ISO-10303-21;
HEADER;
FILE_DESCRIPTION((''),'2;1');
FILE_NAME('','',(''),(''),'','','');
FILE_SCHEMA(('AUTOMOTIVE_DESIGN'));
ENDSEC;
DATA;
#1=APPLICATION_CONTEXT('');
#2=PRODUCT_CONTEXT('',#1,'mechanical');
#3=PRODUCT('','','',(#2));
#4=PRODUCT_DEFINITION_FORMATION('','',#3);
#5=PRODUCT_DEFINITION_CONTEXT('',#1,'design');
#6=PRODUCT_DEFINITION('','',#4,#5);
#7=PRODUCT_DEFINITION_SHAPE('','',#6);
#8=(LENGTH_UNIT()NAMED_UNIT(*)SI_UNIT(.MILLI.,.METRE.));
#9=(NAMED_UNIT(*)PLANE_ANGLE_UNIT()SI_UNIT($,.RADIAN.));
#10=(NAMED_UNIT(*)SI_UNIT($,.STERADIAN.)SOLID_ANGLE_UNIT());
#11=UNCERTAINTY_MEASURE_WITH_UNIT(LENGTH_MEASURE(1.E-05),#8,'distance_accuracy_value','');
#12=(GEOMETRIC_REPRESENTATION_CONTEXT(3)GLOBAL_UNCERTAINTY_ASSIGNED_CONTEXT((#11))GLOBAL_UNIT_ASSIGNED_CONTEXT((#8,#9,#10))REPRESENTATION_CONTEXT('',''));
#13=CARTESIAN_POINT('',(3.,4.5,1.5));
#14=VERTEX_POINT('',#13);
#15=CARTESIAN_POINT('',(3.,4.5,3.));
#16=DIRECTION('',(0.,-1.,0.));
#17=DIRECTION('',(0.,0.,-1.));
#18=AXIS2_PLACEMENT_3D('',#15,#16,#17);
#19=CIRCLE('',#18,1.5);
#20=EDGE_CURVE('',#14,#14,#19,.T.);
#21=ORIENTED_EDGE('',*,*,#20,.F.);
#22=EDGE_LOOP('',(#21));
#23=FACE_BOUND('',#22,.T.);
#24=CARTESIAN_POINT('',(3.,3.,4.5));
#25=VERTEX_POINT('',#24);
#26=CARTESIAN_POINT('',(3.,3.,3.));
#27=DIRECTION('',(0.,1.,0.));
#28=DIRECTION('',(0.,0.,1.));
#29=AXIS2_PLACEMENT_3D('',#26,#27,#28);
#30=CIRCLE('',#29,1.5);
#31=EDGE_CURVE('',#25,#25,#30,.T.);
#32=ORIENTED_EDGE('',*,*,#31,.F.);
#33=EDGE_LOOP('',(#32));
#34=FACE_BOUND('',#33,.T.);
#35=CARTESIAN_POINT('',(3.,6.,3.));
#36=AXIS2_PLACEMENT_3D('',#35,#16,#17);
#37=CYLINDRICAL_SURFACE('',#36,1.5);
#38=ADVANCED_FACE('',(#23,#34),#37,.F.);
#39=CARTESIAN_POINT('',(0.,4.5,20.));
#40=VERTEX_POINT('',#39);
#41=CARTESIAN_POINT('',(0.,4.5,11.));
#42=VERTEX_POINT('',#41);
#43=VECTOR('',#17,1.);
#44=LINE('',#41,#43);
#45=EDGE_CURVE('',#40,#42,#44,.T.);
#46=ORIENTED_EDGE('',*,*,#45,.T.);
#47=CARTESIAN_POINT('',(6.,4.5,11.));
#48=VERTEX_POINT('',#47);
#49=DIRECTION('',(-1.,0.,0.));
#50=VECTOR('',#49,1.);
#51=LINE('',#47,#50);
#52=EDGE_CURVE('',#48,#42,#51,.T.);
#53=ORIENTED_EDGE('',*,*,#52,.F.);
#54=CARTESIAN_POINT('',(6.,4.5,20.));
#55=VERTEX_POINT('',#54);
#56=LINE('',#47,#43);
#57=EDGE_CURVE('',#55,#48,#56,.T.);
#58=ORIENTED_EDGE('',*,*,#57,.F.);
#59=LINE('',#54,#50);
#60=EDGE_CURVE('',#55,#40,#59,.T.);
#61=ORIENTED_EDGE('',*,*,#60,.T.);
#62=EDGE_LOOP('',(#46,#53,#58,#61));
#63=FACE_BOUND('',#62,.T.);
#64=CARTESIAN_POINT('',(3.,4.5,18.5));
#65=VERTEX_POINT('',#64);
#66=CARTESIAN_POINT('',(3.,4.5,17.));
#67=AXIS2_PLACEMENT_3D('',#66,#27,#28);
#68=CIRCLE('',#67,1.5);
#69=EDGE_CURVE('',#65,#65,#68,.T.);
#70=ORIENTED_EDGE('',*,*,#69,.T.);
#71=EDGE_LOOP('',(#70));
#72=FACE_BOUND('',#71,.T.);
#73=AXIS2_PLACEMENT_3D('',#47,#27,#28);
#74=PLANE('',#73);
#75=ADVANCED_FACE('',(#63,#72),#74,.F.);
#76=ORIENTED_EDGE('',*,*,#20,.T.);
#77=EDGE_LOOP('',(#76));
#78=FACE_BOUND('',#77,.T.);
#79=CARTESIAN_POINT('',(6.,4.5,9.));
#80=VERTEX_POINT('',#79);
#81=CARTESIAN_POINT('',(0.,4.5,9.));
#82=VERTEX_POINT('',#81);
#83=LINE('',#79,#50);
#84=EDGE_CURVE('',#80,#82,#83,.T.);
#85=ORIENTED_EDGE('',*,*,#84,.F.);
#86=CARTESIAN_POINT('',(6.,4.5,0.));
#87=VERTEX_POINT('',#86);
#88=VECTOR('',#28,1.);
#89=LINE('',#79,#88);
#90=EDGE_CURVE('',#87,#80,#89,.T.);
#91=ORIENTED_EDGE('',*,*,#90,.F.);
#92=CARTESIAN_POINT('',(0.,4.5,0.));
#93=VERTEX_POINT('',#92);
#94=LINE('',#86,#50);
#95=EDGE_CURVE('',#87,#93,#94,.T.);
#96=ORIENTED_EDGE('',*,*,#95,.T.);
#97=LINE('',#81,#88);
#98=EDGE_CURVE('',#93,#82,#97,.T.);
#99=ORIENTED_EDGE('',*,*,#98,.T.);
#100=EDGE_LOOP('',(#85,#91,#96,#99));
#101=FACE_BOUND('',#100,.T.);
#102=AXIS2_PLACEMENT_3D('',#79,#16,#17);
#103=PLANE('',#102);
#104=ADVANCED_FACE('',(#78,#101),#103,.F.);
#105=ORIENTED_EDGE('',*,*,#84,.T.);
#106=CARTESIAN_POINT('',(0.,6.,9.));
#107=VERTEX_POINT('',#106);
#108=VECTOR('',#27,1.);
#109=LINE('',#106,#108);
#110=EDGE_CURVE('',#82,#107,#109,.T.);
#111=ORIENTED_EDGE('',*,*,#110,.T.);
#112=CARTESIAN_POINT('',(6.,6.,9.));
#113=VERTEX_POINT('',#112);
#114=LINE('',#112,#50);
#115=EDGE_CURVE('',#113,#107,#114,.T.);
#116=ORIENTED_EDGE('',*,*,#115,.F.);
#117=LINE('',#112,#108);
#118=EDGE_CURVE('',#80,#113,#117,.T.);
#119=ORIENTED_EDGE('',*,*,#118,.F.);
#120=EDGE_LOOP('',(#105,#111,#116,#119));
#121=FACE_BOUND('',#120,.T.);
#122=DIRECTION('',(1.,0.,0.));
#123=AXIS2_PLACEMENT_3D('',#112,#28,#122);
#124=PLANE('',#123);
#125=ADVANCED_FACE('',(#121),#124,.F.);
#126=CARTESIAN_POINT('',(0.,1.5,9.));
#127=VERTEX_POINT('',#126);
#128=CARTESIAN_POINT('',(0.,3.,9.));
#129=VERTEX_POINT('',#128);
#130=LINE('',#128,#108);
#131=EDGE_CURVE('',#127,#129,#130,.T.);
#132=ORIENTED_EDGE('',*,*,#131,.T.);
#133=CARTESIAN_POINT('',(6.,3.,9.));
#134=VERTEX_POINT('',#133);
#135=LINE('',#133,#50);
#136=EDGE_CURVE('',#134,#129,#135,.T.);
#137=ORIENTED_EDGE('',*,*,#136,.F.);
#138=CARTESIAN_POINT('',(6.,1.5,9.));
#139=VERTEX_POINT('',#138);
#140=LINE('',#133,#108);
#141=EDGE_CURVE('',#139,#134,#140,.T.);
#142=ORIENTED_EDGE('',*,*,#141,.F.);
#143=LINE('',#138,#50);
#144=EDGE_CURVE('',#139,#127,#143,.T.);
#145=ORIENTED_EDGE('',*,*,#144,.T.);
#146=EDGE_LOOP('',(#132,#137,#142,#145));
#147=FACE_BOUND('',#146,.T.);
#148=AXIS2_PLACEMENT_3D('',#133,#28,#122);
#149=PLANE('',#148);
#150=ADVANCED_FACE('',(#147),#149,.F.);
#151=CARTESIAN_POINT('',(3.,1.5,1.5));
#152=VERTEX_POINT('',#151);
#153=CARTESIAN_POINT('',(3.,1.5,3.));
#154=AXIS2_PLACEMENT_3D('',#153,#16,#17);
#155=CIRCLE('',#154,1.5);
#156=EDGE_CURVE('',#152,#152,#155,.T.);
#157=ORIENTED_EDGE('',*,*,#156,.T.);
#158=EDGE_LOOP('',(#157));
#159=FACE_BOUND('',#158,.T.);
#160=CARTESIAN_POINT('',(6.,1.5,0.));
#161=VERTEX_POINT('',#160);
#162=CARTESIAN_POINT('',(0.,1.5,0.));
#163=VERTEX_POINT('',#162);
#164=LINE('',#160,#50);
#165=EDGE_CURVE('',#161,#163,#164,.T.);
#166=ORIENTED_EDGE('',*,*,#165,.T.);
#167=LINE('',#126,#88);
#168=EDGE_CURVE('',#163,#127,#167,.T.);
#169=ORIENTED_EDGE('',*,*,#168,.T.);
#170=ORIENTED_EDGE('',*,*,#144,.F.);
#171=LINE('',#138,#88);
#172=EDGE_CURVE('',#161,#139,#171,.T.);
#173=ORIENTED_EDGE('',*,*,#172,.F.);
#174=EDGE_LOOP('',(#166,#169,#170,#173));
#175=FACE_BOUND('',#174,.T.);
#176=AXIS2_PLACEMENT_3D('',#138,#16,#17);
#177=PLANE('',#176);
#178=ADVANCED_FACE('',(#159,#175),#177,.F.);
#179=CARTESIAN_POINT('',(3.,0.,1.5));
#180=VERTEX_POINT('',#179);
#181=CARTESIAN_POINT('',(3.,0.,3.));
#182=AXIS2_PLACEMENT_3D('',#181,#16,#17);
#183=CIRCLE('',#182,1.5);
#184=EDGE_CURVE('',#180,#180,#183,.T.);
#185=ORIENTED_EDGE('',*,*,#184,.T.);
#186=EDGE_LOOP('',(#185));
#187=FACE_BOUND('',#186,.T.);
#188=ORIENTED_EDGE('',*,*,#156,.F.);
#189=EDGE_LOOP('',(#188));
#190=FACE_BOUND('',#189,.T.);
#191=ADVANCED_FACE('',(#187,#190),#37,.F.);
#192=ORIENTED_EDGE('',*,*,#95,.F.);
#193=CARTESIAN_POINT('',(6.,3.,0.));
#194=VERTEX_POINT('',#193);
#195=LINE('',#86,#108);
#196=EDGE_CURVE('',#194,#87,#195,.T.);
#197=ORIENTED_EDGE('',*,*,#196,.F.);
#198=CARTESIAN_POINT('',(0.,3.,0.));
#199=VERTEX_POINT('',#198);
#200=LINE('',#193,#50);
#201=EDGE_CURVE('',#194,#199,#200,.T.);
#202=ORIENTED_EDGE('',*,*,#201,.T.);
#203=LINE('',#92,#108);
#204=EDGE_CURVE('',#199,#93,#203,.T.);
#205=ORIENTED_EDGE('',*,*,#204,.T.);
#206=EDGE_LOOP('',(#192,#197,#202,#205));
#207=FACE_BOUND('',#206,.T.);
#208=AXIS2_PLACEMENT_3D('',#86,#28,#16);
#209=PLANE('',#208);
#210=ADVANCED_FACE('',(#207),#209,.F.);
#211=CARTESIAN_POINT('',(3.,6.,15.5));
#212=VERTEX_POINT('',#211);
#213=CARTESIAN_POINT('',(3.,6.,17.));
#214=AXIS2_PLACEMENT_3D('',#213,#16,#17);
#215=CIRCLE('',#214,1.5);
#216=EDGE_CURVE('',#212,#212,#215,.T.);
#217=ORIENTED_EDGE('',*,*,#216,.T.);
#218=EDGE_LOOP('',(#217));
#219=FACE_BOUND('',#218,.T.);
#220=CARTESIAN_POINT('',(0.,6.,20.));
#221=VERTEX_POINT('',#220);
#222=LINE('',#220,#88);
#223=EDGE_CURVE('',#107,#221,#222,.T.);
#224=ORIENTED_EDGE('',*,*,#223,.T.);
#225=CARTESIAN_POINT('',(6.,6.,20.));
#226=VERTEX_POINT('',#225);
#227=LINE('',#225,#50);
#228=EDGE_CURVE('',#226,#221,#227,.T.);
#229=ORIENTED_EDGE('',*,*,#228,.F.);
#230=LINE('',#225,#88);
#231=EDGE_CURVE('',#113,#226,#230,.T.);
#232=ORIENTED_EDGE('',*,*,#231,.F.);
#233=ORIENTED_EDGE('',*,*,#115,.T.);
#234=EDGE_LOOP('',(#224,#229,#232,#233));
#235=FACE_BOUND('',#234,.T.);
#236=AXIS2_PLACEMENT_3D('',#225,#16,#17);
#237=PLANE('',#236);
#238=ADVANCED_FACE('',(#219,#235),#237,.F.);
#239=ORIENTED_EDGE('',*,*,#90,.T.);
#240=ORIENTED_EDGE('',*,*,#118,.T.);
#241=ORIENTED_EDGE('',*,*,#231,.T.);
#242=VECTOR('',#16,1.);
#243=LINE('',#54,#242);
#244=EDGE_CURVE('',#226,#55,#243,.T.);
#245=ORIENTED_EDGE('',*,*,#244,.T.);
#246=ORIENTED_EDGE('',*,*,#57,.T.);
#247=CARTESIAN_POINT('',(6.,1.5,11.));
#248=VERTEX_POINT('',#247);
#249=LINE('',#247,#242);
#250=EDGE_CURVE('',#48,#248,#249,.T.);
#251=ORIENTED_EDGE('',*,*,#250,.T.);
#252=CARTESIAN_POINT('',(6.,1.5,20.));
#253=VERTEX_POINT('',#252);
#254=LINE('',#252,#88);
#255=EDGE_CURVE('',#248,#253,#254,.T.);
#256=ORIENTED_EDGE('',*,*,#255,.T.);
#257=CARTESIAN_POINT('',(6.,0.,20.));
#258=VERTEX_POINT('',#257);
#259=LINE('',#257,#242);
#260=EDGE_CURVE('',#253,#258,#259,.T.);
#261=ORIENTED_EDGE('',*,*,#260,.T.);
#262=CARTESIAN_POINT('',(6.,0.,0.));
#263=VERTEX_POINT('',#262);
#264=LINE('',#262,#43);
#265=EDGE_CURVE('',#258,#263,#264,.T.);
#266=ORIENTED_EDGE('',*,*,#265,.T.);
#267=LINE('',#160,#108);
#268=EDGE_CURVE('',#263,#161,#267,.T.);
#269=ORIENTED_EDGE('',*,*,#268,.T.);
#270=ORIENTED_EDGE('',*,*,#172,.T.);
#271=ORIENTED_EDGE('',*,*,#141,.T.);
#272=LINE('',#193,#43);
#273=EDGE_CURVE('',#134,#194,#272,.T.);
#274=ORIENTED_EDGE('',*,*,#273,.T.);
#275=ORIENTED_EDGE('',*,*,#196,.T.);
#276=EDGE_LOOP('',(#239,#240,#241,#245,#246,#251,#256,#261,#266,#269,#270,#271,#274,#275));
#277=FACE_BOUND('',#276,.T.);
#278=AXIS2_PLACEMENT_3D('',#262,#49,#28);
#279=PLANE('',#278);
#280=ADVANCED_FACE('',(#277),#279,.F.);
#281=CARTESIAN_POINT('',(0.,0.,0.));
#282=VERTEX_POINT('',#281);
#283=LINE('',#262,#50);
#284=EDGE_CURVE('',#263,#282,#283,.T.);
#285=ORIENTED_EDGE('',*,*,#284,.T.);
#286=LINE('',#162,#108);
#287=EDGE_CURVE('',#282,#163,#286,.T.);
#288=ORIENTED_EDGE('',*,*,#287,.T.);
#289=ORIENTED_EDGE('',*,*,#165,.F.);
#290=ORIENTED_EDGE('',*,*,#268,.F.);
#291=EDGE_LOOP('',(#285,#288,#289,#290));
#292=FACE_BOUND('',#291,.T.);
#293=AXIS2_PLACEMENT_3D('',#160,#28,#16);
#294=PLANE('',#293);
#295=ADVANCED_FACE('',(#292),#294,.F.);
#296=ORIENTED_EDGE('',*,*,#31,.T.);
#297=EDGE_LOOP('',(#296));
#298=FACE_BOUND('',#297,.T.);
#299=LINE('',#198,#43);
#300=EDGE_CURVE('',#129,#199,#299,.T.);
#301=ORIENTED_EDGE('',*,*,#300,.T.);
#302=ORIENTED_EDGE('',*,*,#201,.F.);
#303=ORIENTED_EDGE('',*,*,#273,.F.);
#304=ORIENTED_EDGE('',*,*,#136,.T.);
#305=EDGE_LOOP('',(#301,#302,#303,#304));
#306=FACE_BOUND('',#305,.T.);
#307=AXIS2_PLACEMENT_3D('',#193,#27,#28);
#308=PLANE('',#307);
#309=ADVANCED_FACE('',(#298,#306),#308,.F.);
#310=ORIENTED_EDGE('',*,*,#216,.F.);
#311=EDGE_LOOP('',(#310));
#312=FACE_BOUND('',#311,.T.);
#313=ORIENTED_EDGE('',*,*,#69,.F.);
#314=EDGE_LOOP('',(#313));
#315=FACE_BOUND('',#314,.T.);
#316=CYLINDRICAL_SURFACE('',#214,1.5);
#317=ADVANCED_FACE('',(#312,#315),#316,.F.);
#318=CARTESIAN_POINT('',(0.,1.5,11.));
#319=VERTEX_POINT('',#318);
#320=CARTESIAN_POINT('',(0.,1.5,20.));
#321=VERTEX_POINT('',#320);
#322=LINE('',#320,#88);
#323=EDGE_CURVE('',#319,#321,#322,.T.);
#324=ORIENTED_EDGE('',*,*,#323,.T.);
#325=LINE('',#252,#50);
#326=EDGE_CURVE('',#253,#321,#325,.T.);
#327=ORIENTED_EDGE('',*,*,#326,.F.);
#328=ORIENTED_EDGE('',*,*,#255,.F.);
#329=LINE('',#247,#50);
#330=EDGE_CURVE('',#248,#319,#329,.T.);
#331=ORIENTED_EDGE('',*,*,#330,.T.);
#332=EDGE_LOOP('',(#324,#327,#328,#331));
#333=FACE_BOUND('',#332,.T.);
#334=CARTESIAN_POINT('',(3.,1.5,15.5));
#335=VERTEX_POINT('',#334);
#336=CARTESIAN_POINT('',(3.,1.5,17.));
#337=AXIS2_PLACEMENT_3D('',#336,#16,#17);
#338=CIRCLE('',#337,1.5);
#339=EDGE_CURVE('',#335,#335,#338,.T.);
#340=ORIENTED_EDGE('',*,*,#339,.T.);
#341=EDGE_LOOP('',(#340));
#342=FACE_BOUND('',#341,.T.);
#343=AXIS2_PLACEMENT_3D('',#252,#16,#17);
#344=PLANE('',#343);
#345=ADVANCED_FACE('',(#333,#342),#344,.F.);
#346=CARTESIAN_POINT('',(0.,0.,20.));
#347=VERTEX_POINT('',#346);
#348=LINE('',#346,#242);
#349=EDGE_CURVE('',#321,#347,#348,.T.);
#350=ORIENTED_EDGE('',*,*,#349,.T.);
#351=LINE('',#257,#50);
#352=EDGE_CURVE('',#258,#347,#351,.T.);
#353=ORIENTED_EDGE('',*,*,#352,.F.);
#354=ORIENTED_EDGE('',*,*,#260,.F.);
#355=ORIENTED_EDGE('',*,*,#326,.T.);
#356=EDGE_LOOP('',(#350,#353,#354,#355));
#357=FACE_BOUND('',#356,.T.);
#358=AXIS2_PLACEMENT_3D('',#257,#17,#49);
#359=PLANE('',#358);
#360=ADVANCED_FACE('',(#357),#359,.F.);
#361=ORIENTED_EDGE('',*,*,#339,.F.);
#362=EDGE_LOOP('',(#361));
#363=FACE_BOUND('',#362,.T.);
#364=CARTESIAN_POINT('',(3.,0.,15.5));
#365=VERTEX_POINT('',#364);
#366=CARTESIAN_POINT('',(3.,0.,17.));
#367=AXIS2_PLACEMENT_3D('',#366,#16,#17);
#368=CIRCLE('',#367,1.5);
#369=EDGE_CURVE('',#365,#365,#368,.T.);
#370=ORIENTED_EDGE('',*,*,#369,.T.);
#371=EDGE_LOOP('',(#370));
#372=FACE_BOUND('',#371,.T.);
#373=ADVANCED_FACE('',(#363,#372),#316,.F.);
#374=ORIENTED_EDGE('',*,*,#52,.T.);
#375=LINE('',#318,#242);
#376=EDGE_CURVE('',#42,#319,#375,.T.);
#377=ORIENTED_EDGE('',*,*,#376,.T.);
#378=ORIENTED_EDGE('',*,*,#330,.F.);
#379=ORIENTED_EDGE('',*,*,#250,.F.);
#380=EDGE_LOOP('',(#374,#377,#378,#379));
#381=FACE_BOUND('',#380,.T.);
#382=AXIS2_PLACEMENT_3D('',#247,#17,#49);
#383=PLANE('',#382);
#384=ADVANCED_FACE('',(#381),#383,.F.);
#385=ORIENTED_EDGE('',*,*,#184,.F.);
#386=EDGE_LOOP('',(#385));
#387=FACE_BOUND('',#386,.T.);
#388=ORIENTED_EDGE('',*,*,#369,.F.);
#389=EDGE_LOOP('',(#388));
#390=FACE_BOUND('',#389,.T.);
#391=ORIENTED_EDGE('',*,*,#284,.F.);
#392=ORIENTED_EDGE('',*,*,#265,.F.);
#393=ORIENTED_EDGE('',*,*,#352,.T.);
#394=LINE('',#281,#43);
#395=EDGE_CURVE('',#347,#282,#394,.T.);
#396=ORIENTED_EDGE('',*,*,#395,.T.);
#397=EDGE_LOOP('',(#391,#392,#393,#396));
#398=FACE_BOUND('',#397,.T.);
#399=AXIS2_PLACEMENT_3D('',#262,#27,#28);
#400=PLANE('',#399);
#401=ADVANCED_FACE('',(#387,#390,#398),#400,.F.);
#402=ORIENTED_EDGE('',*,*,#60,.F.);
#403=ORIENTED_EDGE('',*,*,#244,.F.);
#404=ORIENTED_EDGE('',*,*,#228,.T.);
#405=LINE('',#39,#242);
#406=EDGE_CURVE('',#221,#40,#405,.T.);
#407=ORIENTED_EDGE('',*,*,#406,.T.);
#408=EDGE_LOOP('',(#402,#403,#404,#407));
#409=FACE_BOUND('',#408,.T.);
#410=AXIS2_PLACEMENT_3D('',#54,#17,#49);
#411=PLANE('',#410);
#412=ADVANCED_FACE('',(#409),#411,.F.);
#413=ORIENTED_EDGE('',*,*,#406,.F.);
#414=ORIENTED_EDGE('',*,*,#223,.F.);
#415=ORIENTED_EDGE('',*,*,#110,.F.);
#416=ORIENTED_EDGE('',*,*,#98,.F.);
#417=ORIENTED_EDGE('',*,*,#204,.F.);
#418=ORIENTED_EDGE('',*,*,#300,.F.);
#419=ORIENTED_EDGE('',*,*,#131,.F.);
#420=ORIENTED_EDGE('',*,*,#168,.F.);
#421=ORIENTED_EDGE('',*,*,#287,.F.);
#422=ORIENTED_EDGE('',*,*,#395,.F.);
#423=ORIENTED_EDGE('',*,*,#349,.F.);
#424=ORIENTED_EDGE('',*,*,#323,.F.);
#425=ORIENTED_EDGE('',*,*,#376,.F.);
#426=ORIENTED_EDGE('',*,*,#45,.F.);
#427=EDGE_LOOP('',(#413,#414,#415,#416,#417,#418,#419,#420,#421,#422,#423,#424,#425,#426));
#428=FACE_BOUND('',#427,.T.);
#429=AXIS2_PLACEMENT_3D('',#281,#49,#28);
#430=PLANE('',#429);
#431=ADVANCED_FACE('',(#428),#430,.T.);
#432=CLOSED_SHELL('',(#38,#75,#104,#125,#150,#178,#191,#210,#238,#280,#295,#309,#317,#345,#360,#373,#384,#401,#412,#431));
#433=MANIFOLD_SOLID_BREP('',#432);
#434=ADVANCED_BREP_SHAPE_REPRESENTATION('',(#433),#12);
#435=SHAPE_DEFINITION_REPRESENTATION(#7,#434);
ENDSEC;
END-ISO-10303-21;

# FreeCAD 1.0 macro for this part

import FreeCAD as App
import Part
import Sketcher

V = App.Vector
Q = App.Units.Quantity


def add_polygon(sketch, points):
    """Adds a closed chain of lines whose ends are joined by coincident constraints."""
    first, n = sketch.GeometryCount, len(points)
    for a, b in zip(points, points[1:] + points[:1]):
        sketch.addGeometry(Part.LineSegment(App.Vector(*a, 0), App.Vector(*b, 0)), False)
    for i in range(n):
        sketch.addConstraint(Sketcher.Constraint("Coincident", first + i, 2, first + (i + 1) % n, 1))

doc = App.newDocument("Part")
body = doc.addObject("PartDesign::Body", "Body")

sketch1 = doc.addObject("Sketcher::SketchObject", "Sketch")
body.addObject(sketch1)
sketch1.AttachmentSupport = (doc.YZ_Plane, [""])
sketch1.MapMode = "FlatFace"
add_polygon(sketch1, [(0, 20), (0, 0), (1.5, 0), (1.5, 9), (3, 9), (3, 0), (4.5, 0), (4.5, 9), (6, 9), (6, 20), (4.5, 20), (4.5, 11), (1.5, 11), (1.5, 20)])
sketch1.addConstraint([
    Sketcher.Constraint("Vertical", 0),
    Sketcher.Constraint("Horizontal", 1),
    Sketcher.Constraint("Vertical", 2),
    Sketcher.Constraint("Horizontal", 3),
    Sketcher.Constraint("Vertical", 4),
    Sketcher.Constraint("Horizontal", 5),
    Sketcher.Constraint("Vertical", 6),
    Sketcher.Constraint("Horizontal", 7),
    Sketcher.Constraint("Vertical", 8),
    Sketcher.Constraint("Horizontal", 9),
    Sketcher.Constraint("Vertical", 10),
    Sketcher.Constraint("Horizontal", 11),
    Sketcher.Constraint("Vertical", 12),
    Sketcher.Constraint("Horizontal", 13),
    Sketcher.Constraint("Coincident", 0, 2, -1, 1),
    Sketcher.Constraint("PointOnObject", 4, 2, -1),
    Sketcher.Constraint("Horizontal", 3, 2, 6, 2),
    Sketcher.Constraint("Horizontal", 9, 2, 12, 2),
    Sketcher.Constraint("Vertical", 6, 2, 9, 2),
    Sketcher.Constraint("Vertical", 2, 2, 11, 2),
    Sketcher.Constraint("Equal", 1, 3),
    Sketcher.Constraint("Equal", 3, 5),
    Sketcher.Constraint("Equal", 5, 7),
    Sketcher.Constraint("Equal", 6, 10),
    Sketcher.Constraint("DistanceX", 11, 2, 11, 1, Q("3 mm")),
    Sketcher.Constraint("DistanceY", 0, 2, 0, 1, Q("20 mm")),
    Sketcher.Constraint("DistanceY", 2, 1, 2, 2, Q("9 mm")),
])
pad1 = doc.addObject("PartDesign::Pad", "Pad")
body.addObject(pad1)
pad1.Profile = sketch1
pad1.Length = 6

sketch2 = doc.addObject("Sketcher::SketchObject", "Sketch001")
body.addObject(sketch2)
sketch2.AttachmentSupport = (doc.XZ_Plane, [""])
sketch2.MapMode = "FlatFace"
sketch2.addGeometry([
    Part.Circle(V(3, 3, 0), V(0, 0, 1), 1.5),
    Part.Circle(V(3, 17, 0), V(0, 0, 1), 1.5),
], False)
sketch2.addConstraint([
    Sketcher.Constraint("Equal", 0, 1),
    Sketcher.Constraint("Vertical", 0, 3, 1, 3),
    Sketcher.Constraint("Diameter", 0, Q("3 mm")),
    Sketcher.Constraint("DistanceX", -1, 1, 0, 3, Q("3 mm")),
    Sketcher.Constraint("DistanceY", -1, 1, 0, 3, Q("3 mm")),
    Sketcher.Constraint("DistanceY", -1, 1, 1, 3, Q("17 mm")),
])
pocket1 = doc.addObject("PartDesign::Pocket", "Pocket")
body.addObject(pocket1)
pocket1.Profile = sketch2
pocket1.Length = 6

doc.recompute()
